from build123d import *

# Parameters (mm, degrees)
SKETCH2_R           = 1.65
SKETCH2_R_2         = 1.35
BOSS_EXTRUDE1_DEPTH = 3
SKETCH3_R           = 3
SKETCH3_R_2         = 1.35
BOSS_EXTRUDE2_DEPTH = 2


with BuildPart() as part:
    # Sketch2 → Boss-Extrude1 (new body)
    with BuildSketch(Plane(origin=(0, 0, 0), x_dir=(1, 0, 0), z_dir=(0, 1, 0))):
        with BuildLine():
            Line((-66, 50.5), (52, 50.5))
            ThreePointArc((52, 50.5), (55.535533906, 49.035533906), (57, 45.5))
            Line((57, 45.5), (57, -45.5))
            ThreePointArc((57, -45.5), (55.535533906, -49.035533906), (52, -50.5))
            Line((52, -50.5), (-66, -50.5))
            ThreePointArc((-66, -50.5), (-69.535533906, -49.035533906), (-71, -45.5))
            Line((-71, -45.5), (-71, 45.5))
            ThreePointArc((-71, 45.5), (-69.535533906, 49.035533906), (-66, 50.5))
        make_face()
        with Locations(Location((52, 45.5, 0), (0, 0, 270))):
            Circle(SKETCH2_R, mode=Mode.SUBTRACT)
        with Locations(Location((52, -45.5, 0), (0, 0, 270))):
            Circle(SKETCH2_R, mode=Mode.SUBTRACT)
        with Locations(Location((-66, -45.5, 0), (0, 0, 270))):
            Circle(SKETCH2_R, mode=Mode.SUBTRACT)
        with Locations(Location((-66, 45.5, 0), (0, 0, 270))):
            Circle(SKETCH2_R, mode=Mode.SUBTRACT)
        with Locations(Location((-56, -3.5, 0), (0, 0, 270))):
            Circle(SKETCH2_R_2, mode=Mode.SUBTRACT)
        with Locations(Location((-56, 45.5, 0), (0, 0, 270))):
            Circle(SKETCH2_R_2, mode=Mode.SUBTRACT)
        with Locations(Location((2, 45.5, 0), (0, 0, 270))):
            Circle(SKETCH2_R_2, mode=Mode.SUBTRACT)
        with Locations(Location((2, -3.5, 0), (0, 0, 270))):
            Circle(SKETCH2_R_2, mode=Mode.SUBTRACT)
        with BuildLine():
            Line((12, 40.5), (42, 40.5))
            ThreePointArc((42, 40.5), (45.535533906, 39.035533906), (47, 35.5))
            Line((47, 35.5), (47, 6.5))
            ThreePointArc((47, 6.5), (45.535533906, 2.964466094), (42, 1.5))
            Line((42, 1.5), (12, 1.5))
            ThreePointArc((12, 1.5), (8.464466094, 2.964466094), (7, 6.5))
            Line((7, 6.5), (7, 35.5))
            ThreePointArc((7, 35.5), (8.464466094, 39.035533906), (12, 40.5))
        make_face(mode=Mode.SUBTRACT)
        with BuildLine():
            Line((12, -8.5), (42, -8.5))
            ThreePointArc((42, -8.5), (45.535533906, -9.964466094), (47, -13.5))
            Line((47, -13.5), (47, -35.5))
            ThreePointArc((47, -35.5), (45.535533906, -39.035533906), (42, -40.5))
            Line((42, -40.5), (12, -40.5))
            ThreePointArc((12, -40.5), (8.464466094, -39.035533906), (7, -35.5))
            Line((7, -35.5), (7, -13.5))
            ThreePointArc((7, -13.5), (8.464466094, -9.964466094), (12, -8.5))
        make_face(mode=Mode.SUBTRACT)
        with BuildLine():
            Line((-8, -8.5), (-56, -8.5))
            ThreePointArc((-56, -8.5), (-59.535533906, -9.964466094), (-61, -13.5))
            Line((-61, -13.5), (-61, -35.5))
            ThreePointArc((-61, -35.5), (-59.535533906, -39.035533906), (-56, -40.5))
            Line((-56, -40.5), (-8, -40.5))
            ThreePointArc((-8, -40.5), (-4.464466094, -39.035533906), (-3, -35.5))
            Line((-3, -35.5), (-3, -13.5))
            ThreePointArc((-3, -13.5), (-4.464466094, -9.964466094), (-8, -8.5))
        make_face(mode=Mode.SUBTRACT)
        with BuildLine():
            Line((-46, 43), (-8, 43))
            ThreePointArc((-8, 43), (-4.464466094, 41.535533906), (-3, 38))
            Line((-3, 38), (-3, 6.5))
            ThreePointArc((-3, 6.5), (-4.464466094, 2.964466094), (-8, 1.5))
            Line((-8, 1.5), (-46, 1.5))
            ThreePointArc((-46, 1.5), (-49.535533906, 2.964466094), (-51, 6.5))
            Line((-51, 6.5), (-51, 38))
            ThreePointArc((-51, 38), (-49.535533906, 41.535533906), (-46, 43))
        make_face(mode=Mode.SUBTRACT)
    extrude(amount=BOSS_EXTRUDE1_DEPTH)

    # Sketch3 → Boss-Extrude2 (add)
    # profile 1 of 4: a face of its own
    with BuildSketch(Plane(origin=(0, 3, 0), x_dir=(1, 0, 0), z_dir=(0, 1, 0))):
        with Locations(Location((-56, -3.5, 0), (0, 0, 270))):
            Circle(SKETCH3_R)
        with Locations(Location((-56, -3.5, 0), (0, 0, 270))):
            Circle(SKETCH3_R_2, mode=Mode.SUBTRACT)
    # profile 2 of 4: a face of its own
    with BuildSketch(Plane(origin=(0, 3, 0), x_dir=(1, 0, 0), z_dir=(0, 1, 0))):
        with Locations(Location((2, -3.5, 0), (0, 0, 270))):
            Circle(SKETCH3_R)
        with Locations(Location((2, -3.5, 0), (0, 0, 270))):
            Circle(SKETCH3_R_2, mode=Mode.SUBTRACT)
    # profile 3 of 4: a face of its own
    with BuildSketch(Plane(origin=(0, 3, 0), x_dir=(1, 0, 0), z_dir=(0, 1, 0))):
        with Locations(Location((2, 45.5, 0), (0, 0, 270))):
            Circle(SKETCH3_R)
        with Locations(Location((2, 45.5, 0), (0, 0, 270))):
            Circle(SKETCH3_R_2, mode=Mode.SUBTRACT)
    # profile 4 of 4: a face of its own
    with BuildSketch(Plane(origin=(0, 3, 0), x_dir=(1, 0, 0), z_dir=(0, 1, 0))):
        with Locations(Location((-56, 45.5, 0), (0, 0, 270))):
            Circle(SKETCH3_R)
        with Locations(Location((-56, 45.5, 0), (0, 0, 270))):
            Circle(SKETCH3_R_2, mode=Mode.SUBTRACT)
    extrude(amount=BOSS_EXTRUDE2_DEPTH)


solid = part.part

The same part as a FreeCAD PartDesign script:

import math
import FreeCAD as App
import Part
import Sketcher

doc = App.newDocument("Part")
params = doc.addObject("Spreadsheet::Sheet", "Params")
for row, (alias, value) in enumerate([
    ("sketch1_radius", "5 mm"),
    ("sketch1_diameter", "3.3 mm"),
    ("sketch1_diameter2", "2.7 mm"),
    ("sketch1_width", "118 mm"),
    ("sketch1_width2", "30 mm"),
    ("pad1_length", "3 mm"),
    ("sketch2_diameter", "6 mm"),
    ("sketch2_diameter2", "2.7 mm"),
    ("pad2_length", "2 mm"),
], start=1):
    params.set(f"A{row}", alias)
    params.set(f"B{row}", "=" + value)
    params.setAlias(f"B{row}", alias)

body = doc.addObject("PartDesign::Body", "Body")

# Sketch on XZ plane
sketch1 = body.newObject("Sketcher::SketchObject", "Sketch")
sketch1.AttachmentSupport = (doc.getObject("XZ_Plane"), [""])
sketch1.MapMode = "FlatFace"
sketch1.addGeometry([
    Part.LineSegment(App.Vector(52, -50.5, 0), App.Vector(-66, -50.5, 0)),  # 0
    Part.ArcOfCircle(Part.Circle(App.Vector(-66, -45.5, 0), App.Vector(0, 0, 1), 5), math.radians(180), math.radians(270)),  # 1
    Part.LineSegment(App.Vector(-71, -45.5, 0), App.Vector(-71, 45.5, 0)),  # 2
    Part.ArcOfCircle(Part.Circle(App.Vector(-66, 45.5, 0), App.Vector(0, 0, 1), 5), math.radians(90), math.radians(180)),  # 3
    Part.LineSegment(App.Vector(-66, 50.5, 0), App.Vector(52, 50.5, 0)),  # 4
    Part.ArcOfCircle(Part.Circle(App.Vector(52, 45.5, 0), App.Vector(0, 0, 1), 5), math.radians(0), math.radians(90)),  # 5
    Part.LineSegment(App.Vector(57, 45.5, 0), App.Vector(57, -45.5, 0)),  # 6
    Part.ArcOfCircle(Part.Circle(App.Vector(52, -45.5, 0), App.Vector(0, 0, 1), 5), math.radians(-90), math.radians(0)),  # 7
    Part.Circle(App.Vector(52, 45.5, 0), App.Vector(0, 0, 1), 1.6),  # 8
    Part.LineSegment(App.Vector(12, 8.5, 0), App.Vector(42, 8.5, 0)),  # 9
    Part.ArcOfCircle(Part.Circle(App.Vector(42, 13.5, 0), App.Vector(0, 0, 1), 5), math.radians(-90), math.radians(0)),  # 10
    Part.LineSegment(App.Vector(47, 13.5, 0), App.Vector(47, 35.5, 0)),  # 11
    Part.ArcOfCircle(Part.Circle(App.Vector(42, 35.5, 0), App.Vector(0, 0, 1), 5), math.radians(0), math.radians(90)),  # 12
    Part.LineSegment(App.Vector(42, 40.5, 0), App.Vector(12, 40.5, 0)),  # 13
    Part.ArcOfCircle(Part.Circle(App.Vector(12, 35.5, 0), App.Vector(0, 0, 1), 5), math.radians(90), math.radians(180)),  # 14
    Part.LineSegment(App.Vector(7, 35.5, 0), App.Vector(7, 13.5, 0)),  # 15
    Part.ArcOfCircle(Part.Circle(App.Vector(12, 13.5, 0), App.Vector(0, 0, 1), 5), math.radians(180), math.radians(270)),  # 16
    Part.Circle(App.Vector(2, 3.5, 0), App.Vector(0, 0, 1), 1.4),  # 17
    Part.ArcOfCircle(Part.Circle(App.Vector(-8, 13.5, 0), App.Vector(0, 0, 1), 5), math.radians(-90), math.radians(0)),  # 18
    Part.LineSegment(App.Vector(-3, 13.5, 0), App.Vector(-3, 35.5, 0)),  # 19
    Part.ArcOfCircle(Part.Circle(App.Vector(-8, 35.5, 0), App.Vector(0, 0, 1), 5), math.radians(0), math.radians(90)),  # 20
    Part.LineSegment(App.Vector(-8, 40.5, 0), App.Vector(-56, 40.5, 0)),  # 21
    Part.ArcOfCircle(Part.Circle(App.Vector(-56, 35.5, 0), App.Vector(0, 0, 1), 5), math.radians(90), math.radians(180)),  # 22
    Part.LineSegment(App.Vector(-61, 35.5, 0), App.Vector(-61, 13.5, 0)),  # 23
    Part.ArcOfCircle(Part.Circle(App.Vector(-56, 13.5, 0), App.Vector(0, 0, 1), 5), math.radians(180), math.radians(270)),  # 24
    Part.LineSegment(App.Vector(-56, 8.5, 0), App.Vector(-8, 8.5, 0)),  # 25
    Part.Circle(App.Vector(-66, 45.5, 0), App.Vector(0, 0, 1), 1.6),  # 26
    Part.Circle(App.Vector(-56, 3.5, 0), App.Vector(0, 0, 1), 1.4),  # 27
    Part.LineSegment(App.Vector(12, -40.5, 0), App.Vector(42, -40.5, 0)),  # 28
    Part.ArcOfCircle(Part.Circle(App.Vector(42, -35.5, 0), App.Vector(0, 0, 1), 5), math.radians(-90), math.radians(0)),  # 29
    Part.LineSegment(App.Vector(47, -35.5, 0), App.Vector(47, -6.5, 0)),  # 30
    Part.ArcOfCircle(Part.Circle(App.Vector(42, -6.5, 0), App.Vector(0, 0, 1), 5), math.radians(0), math.radians(90)),  # 31
    Part.LineSegment(App.Vector(42, -1.5, 0), App.Vector(12, -1.5, 0)),  # 32
    Part.ArcOfCircle(Part.Circle(App.Vector(12, -6.5, 0), App.Vector(0, 0, 1), 5), math.radians(90), math.radians(180)),  # 33
    Part.LineSegment(App.Vector(7, -6.5, 0), App.Vector(7, -35.5, 0)),  # 34
    Part.ArcOfCircle(Part.Circle(App.Vector(12, -35.5, 0), App.Vector(0, 0, 1), 5), math.radians(180), math.radians(270)),  # 35
    Part.Circle(App.Vector(52, -45.5, 0), App.Vector(0, 0, 1), 1.6),  # 36
    Part.Circle(App.Vector(2, -45.5, 0), App.Vector(0, 0, 1), 1.4),  # 37
    Part.LineSegment(App.Vector(-46, -43, 0), App.Vector(-8, -43, 0)),  # 38
    Part.ArcOfCircle(Part.Circle(App.Vector(-8, -38, 0), App.Vector(0, 0, 1), 5), math.radians(-90), math.radians(0)),  # 39
    Part.LineSegment(App.Vector(-3, -38, 0), App.Vector(-3, -6.5, 0)),  # 40
    Part.ArcOfCircle(Part.Circle(App.Vector(-8, -6.5, 0), App.Vector(0, 0, 1), 5), math.radians(0), math.radians(90)),  # 41
    Part.LineSegment(App.Vector(-8, -1.5, 0), App.Vector(-46, -1.5, 0)),  # 42
    Part.ArcOfCircle(Part.Circle(App.Vector(-46, -6.5, 0), App.Vector(0, 0, 1), 5), math.radians(90), math.radians(180)),  # 43
    Part.LineSegment(App.Vector(-51, -6.5, 0), App.Vector(-51, -38, 0)),  # 44
    Part.ArcOfCircle(Part.Circle(App.Vector(-46, -38, 0), App.Vector(0, 0, 1), 5), math.radians(180), math.radians(270)),  # 45
    Part.Circle(App.Vector(-56, -45.5, 0), App.Vector(0, 0, 1), 1.4),  # 46
    Part.Circle(App.Vector(-66, -45.5, 0), App.Vector(0, 0, 1), 1.6),  # 47
], False)
sketch1.addConstraint([
    Sketcher.Constraint("Tangent", 0, 2, 1, 2),
    Sketcher.Constraint("Tangent", 1, 1, 2, 1),
    Sketcher.Constraint("Tangent", 2, 2, 3, 2),
    Sketcher.Constraint("Tangent", 3, 1, 4, 1),
    Sketcher.Constraint("Tangent", 4, 2, 5, 2),
    Sketcher.Constraint("Tangent", 5, 1, 6, 1),
    Sketcher.Constraint("Tangent", 6, 2, 7, 2),
    Sketcher.Constraint("Tangent", 7, 1, 0, 1),
    Sketcher.Constraint("Tangent", 9, 2, 10, 1),
    Sketcher.Constraint("Tangent", 10, 2, 11, 1),
    Sketcher.Constraint("Tangent", 11, 2, 12, 1),
    Sketcher.Constraint("Tangent", 12, 2, 13, 1),
    Sketcher.Constraint("Tangent", 13, 2, 14, 1),
    Sketcher.Constraint("Tangent", 14, 2, 15, 1),
    Sketcher.Constraint("Tangent", 15, 2, 16, 1),
    Sketcher.Constraint("Tangent", 16, 2, 9, 1),
    Sketcher.Constraint("Tangent", 18, 2, 19, 1),
    Sketcher.Constraint("Tangent", 19, 2, 20, 1),
    Sketcher.Constraint("Tangent", 20, 2, 21, 1),
    Sketcher.Constraint("Tangent", 21, 2, 22, 1),
    Sketcher.Constraint("Tangent", 22, 2, 23, 1),
    Sketcher.Constraint("Tangent", 23, 2, 24, 1),
    Sketcher.Constraint("Tangent", 24, 2, 25, 1),
    Sketcher.Constraint("Tangent", 25, 2, 18, 1),
    Sketcher.Constraint("Tangent", 28, 2, 29, 1),
    Sketcher.Constraint("Tangent", 29, 2, 30, 1),
    Sketcher.Constraint("Tangent", 30, 2, 31, 1),
    Sketcher.Constraint("Tangent", 31, 2, 32, 1),
    Sketcher.Constraint("Tangent", 32, 2, 33, 1),
    Sketcher.Constraint("Tangent", 33, 2, 34, 1),
    Sketcher.Constraint("Tangent", 34, 2, 35, 1),
    Sketcher.Constraint("Tangent", 35, 2, 28, 1),
    Sketcher.Constraint("Tangent", 38, 2, 39, 1),
    Sketcher.Constraint("Tangent", 39, 2, 40, 1),
    Sketcher.Constraint("Tangent", 40, 2, 41, 1),
    Sketcher.Constraint("Tangent", 41, 2, 42, 1),
    Sketcher.Constraint("Tangent", 42, 2, 43, 1),
    Sketcher.Constraint("Tangent", 43, 2, 44, 1),
    Sketcher.Constraint("Tangent", 44, 2, 45, 1),
    Sketcher.Constraint("Tangent", 45, 2, 38, 1),
    Sketcher.Constraint("Horizontal", 0),
    Sketcher.Constraint("Vertical", 2),
    Sketcher.Constraint("Horizontal", 4),
    Sketcher.Constraint("Vertical", 6),
    Sketcher.Constraint("Horizontal", 9),
    Sketcher.Constraint("Vertical", 11),
    Sketcher.Constraint("Horizontal", 13),
    Sketcher.Constraint("Vertical", 15),
    Sketcher.Constraint("Vertical", 19),
    Sketcher.Constraint("Horizontal", 21),
    Sketcher.Constraint("Vertical", 23),
    Sketcher.Constraint("Horizontal", 25),
    Sketcher.Constraint("Horizontal", 28),
    Sketcher.Constraint("Vertical", 30),
    Sketcher.Constraint("Horizontal", 32),
    Sketcher.Constraint("Vertical", 34),
    Sketcher.Constraint("Horizontal", 38),
    Sketcher.Constraint("Vertical", 40),
    Sketcher.Constraint("Horizontal", 42),
    Sketcher.Constraint("Vertical", 44),
    Sketcher.Constraint("Coincident", 8, 3, 5, 3),
    Sketcher.Constraint("Coincident", 26, 3, 3, 3),
    Sketcher.Constraint("Coincident", 36, 3, 7, 3),
    Sketcher.Constraint("Coincident", 47, 3, 1, 3),
    Sketcher.Constraint("Equal", 1, 3),
    Sketcher.Constraint("Equal", 3, 5),
    Sketcher.Constraint("Equal", 5, 7),
    Sketcher.Constraint("Equal", 7, 10),
    Sketcher.Constraint("Equal", 10, 12),
    Sketcher.Constraint("Equal", 12, 14),
    Sketcher.Constraint("Equal", 14, 16),
    Sketcher.Constraint("Equal", 16, 18),
    Sketcher.Constraint("Equal", 18, 20),
    Sketcher.Constraint("Equal", 20, 22),
    Sketcher.Constraint("Equal", 22, 24),
    Sketcher.Constraint("Equal", 8, 26),
    Sketcher.Constraint("Equal", 17, 27),
    Sketcher.Constraint("Equal", 24, 29),
    Sketcher.Constraint("Equal", 29, 31),
    Sketcher.Constraint("Equal", 31, 33),
    Sketcher.Constraint("Equal", 33, 35),
    Sketcher.Constraint("Equal", 26, 36),
    Sketcher.Constraint("Equal", 27, 37),
    Sketcher.Constraint("Equal", 35, 39),
    Sketcher.Constraint("Equal", 39, 41),
    Sketcher.Constraint("Equal", 41, 43),
    Sketcher.Constraint("Equal", 43, 45),
    Sketcher.Constraint("Equal", 37, 46),
    Sketcher.Constraint("Equal", 36, 47),
    Sketcher.Constraint("Symmetric", 12, 3, 29, 3, -1),
    Sketcher.Constraint("Horizontal", 16, 3, 18, 3),
    Sketcher.Constraint("Horizontal", 14, 3, 20, 3),
    Sketcher.Constraint("Horizontal", 17, 3, 27, 3),
    Sketcher.Constraint("Horizontal", 36, 3, 37, 3),
    Sketcher.Constraint("Horizontal", 33, 3, 41, 3),
    Sketcher.Constraint("Horizontal", 37, 3, 46, 3),
    Sketcher.Constraint("Vertical", 24, 3, 27, 3),
    Sketcher.Constraint("Vertical", 16, 3, 33, 3),
    Sketcher.Constraint("Vertical", 17, 3, 37, 3),
    Sketcher.Constraint("Vertical", 20, 3, 39, 3),
    Sketcher.Constraint("Vertical", 27, 3, 46, 3),
    Sketcher.Constraint("Radius", 1, 5.0),
    Sketcher.Constraint("Diameter", 8, 3.3),
    Sketcher.Constraint("Diameter", 17, 2.7),
    Sketcher.Constraint("DistanceX", 0, 2, 0, 1, 118.0),
    Sketcher.Constraint("DistanceX", 9, 1, 9, 2, 30.0),
    Sketcher.Constraint("DistanceX", 21, 2, 21, 1, 48.0),
    Sketcher.Constraint("DistanceX", 38, 1, 38, 2, 38.0),
    Sketcher.Constraint("DistanceY", 2, 1, 2, 2, 91.0),
    Sketcher.Constraint("DistanceY", 11, 1, 11, 2, 22.0),
    Sketcher.Constraint("DistanceY", 30, 1, 30, 2, 29.0),
    Sketcher.Constraint("DistanceY", 40, 1, 40, 2, 31.5),
    Sketcher.Constraint("DistanceX", 1, 3, -1, 1, 66.0),
    Sketcher.Constraint("DistanceX", -1, 1, 10, 3, 42.0),
    Sketcher.Constraint("DistanceX", -1, 1, 17, 3, 2.0),
    Sketcher.Constraint("DistanceX", 18, 3, -1, 1, 8.0),
    Sketcher.Constraint("DistanceY", 39, 3, -1, 1, 38.0),
    Sketcher.Constraint("DistanceY", 1, 3, -1, 1, 45.5),
    Sketcher.Constraint("DistanceY", -1, 1, 17, 3, 3.5),
])
sketch1.setExpression("Constraints[101]", "Params.sketch1_radius")
sketch1.setExpression("Constraints[102]", "Params.sketch1_diameter")
sketch1.setExpression("Constraints[103]", "Params.sketch1_diameter2")
sketch1.setExpression("Constraints[104]", "Params.sketch1_width")
sketch1.setExpression("Constraints[105]", "Params.sketch1_width2")
pad1 = body.newObject("PartDesign::Pad", "Pad")
pad1.Profile = sketch1
pad1.setExpression("Length", "Params.pad1_length")
pad1.Reversed = True

# Sketch on XZ plane
sketch2 = body.newObject("Sketcher::SketchObject", "Sketch001")
sketch2.AttachmentSupport = (doc.getObject("XZ_Plane"), [""])
sketch2.MapMode = "FlatFace"
sketch2.AttachmentOffset = App.Placement(App.Vector(0, 0, -3), App.Rotation())
sketch2.addGeometry([
    Part.Circle(App.Vector(-56, 3.5, 0), App.Vector(0, 0, 1), 3),  # 0
    Part.Circle(App.Vector(-56, 3.5, 0), App.Vector(0, 0, 1), 1.4),  # 1
    Part.Circle(App.Vector(2, 3.5, 0), App.Vector(0, 0, 1), 3),  # 2
    Part.Circle(App.Vector(2, 3.5, 0), App.Vector(0, 0, 1), 1.4),  # 3
    Part.Circle(App.Vector(2, -45.5, 0), App.Vector(0, 0, 1), 3),  # 4
    Part.Circle(App.Vector(2, -45.5, 0), App.Vector(0, 0, 1), 1.4),  # 5
    Part.Circle(App.Vector(-56, -45.5, 0), App.Vector(0, 0, 1), 3),  # 6
    Part.Circle(App.Vector(-56, -45.5, 0), App.Vector(0, 0, 1), 1.4),  # 7
], False)
sketch2.addConstraint([
    Sketcher.Constraint("Coincident", 1, 3, 0, 3),
    Sketcher.Constraint("Coincident", 3, 3, 2, 3),
    Sketcher.Constraint("Coincident", 5, 3, 4, 3),
    Sketcher.Constraint("Coincident", 7, 3, 6, 3),
    Sketcher.Constraint("Equal", 0, 2),
    Sketcher.Constraint("Equal", 1, 3),
    Sketcher.Constraint("Equal", 2, 4),
    Sketcher.Constraint("Equal", 3, 5),
    Sketcher.Constraint("Equal", 4, 6),
    Sketcher.Constraint("Equal", 5, 7),
    Sketcher.Constraint("Horizontal", 1, 3, 2, 3),
    Sketcher.Constraint("Horizontal", 5, 3, 6, 3),
    Sketcher.Constraint("Vertical", 3, 3, 4, 3),
    Sketcher.Constraint("Vertical", 1, 3, 6, 3),
    Sketcher.Constraint("Diameter", 0, 6.0),
    Sketcher.Constraint("Diameter", 1, 2.7),
    Sketcher.Constraint("DistanceX", 0, 3, -1, 1, 56.0),
    Sketcher.Constraint("DistanceX", -1, 1, 2, 3, 2.0),
    Sketcher.Constraint("DistanceY", 4, 3, 2, 3, 49.0),
    Sketcher.Constraint("DistanceY", -1, 1, 0, 3, 3.5),
])
sketch2.setExpression("Constraints[14]", "Params.sketch2_diameter")
sketch2.setExpression("Constraints[15]", "Params.sketch2_diameter2")
pad2 = body.newObject("PartDesign::Pad", "Pad001")
pad2.Profile = sketch2
pad2.setExpression("Length", "Params.pad2_length")
pad2.Reversed = True

doc.recompute()
